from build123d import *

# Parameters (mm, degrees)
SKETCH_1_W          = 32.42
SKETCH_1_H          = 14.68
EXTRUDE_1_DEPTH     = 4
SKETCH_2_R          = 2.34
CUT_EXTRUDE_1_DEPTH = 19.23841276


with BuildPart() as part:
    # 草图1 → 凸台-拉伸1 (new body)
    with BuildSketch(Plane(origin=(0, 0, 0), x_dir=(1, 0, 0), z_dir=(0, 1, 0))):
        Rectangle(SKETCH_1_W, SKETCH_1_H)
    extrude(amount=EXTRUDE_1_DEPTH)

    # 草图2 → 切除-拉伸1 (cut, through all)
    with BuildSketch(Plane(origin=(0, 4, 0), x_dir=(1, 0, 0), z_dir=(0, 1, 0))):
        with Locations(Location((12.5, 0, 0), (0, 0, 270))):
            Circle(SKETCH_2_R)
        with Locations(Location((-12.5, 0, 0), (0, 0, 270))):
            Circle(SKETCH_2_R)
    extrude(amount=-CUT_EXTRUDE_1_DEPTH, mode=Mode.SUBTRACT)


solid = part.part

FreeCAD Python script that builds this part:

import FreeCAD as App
import Part
import Sketcher

V = App.Vector


def add_polygon(sketch, points):
    """Adds a closed chain of lines whose ends are joined by coincident constraints."""
    first, n = sketch.GeometryCount, len(points)
    for a, b in zip(points, points[1:] + points[:1]):
        sketch.addGeometry(Part.LineSegment(App.Vector(*a, 0), App.Vector(*b, 0)), False)
    for i in range(n):
        sketch.addConstraint(Sketcher.Constraint("Coincident", first + i, 2, first + (i + 1) % n, 1))

doc = App.newDocument("Part")
body = doc.addObject("PartDesign::Body", "Body")

# Sketch on XZ plane
sketch1 = body.newObject("Sketcher::SketchObject", "Sketch")
sketch1.AttachmentSupport = (doc.getObject("XZ_Plane"), [""])
sketch1.MapMode = "FlatFace"
add_polygon(sketch1, [(-16, -7), (-16, 7), (16, 7), (16, -7)])  # lines 0-3
sketch1.addConstraint([
    Sketcher.Constraint("Vertical", 0),
    Sketcher.Constraint("Horizontal", 1),
    Sketcher.Constraint("Vertical", 2),
    Sketcher.Constraint("Horizontal", 3),
    Sketcher.Constraint("Symmetric", 0, 2, 2, 2, -1, 1),
    Sketcher.Constraint("DistanceX", 1, 1, 1, 2, 32.42),
    Sketcher.Constraint("DistanceY", 0, 1, 0, 2, 14.68),
])
pad1 = body.newObject("PartDesign::Pad", "Pad")
pad1.Profile = sketch1
pad1.Length = 4
pad1.Reversed = True

# Sketch on XZ plane
sketch2 = body.newObject("Sketcher::SketchObject", "Sketch001")
sketch2.AttachmentSupport = (doc.getObject("XZ_Plane"), [""])
sketch2.MapMode = "FlatFace"
sketch2.AttachmentOffset = App.Placement(V(0, 0, -4), App.Rotation())
sketch2.addGeometry([
    Part.Circle(V(12.5, 0, 0), V(0, 0, 1), 2.3),
    Part.Circle(V(-12.5, 0, 0), V(0, 0, 1), 2.3),
], False)
sketch2.addConstraint([
    Sketcher.Constraint("Equal", 0, 1),
    Sketcher.Constraint("Symmetric", 0, 3, 1, 3, -1, 1),
    Sketcher.Constraint("PointOnObject", 0, 3, -1),
    Sketcher.Constraint("Diameter", 0, 4.68),
    Sketcher.Constraint("DistanceX", 1, 3, 0, 3, 25.0),
])
pocket1 = body.newObject("PartDesign::Pocket", "Pocket")
pocket1.Profile = sketch2
pocket1.Type = "ThroughAll"
pocket1.Reversed = True

doc.recompute()
